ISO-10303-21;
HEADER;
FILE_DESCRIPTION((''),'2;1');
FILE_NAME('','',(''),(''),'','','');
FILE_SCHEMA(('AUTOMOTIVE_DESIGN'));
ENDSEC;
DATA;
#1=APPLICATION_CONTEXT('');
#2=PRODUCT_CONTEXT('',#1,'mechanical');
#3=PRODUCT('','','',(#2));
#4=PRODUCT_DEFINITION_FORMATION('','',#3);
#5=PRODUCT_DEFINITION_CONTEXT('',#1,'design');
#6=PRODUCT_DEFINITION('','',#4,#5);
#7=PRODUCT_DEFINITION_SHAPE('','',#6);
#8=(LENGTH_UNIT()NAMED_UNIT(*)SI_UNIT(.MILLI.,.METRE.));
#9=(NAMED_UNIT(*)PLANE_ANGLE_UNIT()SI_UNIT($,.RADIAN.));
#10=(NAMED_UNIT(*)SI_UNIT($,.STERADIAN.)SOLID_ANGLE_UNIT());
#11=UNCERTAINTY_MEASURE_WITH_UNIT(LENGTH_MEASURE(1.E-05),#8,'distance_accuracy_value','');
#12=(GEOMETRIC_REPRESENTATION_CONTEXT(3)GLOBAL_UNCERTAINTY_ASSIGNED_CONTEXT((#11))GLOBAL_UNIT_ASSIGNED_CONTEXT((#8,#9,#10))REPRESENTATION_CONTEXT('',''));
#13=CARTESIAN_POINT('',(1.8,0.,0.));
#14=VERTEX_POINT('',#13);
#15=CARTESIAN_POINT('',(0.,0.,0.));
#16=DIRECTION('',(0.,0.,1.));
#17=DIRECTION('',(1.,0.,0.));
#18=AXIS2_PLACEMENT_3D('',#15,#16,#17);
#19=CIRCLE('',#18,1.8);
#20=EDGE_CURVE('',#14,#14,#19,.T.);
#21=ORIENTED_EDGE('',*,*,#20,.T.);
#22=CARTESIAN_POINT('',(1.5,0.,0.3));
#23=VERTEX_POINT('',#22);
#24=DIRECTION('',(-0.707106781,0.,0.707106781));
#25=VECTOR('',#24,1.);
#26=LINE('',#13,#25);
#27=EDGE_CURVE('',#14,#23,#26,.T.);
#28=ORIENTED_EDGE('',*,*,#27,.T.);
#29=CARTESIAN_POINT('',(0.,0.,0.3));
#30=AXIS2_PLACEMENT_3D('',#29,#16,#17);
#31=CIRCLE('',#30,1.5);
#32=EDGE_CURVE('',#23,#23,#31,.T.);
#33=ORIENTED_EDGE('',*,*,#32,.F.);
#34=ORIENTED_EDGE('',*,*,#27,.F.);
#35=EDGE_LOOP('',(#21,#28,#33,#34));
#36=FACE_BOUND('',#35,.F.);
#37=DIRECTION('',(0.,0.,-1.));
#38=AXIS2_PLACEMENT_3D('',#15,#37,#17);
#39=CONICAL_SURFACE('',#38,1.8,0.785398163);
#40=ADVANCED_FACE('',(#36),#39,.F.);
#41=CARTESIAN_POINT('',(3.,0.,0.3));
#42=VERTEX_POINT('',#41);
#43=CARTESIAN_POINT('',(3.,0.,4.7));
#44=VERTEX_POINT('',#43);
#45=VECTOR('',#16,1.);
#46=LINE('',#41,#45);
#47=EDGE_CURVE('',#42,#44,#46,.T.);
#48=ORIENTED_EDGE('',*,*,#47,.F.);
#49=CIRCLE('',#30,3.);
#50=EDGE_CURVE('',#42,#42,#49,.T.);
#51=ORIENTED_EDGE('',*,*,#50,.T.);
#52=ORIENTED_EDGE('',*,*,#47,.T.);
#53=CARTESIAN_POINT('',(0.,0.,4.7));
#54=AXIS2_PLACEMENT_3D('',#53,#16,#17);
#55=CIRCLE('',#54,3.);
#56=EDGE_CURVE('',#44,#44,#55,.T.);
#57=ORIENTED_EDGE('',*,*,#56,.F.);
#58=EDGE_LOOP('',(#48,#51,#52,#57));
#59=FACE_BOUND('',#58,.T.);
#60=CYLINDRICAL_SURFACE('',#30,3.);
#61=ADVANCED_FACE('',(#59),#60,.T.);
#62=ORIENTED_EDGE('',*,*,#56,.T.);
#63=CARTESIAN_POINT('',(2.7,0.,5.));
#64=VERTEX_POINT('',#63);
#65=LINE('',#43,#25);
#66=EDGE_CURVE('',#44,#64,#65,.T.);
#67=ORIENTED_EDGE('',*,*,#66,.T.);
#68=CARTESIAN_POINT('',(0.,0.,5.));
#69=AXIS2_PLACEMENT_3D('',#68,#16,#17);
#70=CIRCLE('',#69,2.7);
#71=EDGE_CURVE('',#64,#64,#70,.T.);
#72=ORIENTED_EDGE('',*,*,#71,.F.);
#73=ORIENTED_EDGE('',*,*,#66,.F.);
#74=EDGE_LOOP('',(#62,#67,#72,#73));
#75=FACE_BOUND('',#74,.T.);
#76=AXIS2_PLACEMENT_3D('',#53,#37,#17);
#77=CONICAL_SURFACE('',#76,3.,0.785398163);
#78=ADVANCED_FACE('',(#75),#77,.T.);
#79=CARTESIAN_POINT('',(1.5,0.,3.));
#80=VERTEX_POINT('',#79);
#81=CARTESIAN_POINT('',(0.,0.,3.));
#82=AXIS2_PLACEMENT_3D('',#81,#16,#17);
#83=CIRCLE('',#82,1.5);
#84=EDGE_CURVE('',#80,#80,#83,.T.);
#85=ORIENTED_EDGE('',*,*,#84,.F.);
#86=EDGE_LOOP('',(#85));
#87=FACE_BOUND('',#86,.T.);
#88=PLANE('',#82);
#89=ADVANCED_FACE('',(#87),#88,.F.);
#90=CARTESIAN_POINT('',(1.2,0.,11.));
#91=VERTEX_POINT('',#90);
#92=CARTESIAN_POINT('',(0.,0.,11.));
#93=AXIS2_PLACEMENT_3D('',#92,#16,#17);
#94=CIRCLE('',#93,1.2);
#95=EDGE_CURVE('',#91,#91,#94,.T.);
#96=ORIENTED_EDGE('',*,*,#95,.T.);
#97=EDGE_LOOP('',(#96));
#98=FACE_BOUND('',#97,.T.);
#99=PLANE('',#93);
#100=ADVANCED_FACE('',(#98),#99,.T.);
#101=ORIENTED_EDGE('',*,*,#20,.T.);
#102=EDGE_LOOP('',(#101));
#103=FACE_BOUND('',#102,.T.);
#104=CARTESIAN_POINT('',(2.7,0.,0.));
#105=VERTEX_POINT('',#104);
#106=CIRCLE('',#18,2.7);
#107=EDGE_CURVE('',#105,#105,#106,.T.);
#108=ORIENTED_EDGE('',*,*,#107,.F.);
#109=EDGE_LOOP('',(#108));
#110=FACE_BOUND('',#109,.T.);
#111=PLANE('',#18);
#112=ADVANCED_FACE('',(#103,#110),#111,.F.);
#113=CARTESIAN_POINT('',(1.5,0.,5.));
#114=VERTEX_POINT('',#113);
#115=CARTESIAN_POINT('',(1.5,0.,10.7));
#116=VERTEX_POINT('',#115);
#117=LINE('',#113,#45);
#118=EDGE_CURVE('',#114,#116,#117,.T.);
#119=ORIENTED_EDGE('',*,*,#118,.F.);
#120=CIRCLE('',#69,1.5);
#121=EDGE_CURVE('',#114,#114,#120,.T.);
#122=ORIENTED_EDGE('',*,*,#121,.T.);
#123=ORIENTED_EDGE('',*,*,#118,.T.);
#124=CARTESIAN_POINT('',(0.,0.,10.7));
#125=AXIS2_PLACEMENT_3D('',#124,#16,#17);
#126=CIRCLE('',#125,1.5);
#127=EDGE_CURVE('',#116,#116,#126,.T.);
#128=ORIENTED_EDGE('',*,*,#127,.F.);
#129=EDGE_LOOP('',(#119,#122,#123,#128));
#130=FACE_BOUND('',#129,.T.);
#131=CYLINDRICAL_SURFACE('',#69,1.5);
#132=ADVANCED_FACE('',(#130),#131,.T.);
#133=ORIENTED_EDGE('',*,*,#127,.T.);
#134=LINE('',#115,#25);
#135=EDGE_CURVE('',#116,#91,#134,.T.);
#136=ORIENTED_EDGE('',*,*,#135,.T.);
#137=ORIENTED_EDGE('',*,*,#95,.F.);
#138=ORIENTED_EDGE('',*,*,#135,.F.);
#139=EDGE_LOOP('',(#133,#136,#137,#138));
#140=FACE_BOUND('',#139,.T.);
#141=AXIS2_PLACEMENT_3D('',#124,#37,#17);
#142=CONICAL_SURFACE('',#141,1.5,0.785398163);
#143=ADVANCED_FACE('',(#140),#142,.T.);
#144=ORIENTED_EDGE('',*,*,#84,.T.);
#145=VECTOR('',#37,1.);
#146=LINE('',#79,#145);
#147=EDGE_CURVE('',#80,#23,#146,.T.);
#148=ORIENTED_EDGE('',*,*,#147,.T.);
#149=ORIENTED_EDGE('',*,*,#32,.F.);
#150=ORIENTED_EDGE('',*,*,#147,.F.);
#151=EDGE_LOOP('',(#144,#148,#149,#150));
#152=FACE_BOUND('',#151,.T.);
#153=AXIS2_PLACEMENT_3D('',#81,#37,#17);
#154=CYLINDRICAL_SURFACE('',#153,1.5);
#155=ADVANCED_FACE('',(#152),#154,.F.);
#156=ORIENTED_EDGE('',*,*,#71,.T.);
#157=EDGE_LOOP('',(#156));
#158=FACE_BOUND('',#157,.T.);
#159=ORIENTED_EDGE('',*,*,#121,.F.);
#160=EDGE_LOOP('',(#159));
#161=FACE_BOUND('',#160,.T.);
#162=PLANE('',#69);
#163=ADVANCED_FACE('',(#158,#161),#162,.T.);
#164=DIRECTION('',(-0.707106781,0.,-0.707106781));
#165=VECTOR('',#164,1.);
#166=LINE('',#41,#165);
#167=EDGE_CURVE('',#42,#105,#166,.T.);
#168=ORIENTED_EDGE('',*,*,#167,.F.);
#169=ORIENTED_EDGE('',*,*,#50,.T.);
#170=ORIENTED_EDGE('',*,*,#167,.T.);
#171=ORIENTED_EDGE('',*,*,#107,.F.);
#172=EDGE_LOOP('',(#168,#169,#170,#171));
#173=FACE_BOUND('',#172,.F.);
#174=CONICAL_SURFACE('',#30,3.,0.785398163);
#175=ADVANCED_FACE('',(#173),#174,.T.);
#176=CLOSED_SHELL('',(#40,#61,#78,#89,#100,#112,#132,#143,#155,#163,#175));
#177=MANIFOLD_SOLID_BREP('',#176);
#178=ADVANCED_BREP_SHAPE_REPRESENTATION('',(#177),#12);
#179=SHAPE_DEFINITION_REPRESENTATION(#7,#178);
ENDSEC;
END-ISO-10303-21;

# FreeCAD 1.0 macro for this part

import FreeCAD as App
import Part
import Sketcher
from FreeCAD import Vector
Q = App.Units.Quantity

doc = App.newDocument("Part")
body = doc.addObject("PartDesign::Body", "Body")

# Sketch on XZ plane
sketch1 = body.newObject("Sketcher::SketchObject", "Sketch")
sketch1.AttachmentSupport = (doc.getObject("XZ_Plane"), [""])
sketch1.MapMode = "FlatFace"
sketch1.addGeometry([
    Part.LineSegment(Vector(2.7, 0, 0), Vector(1.8, 0, 0)),  # 0
    Part.LineSegment(Vector(1.8, 0, 0), Vector(1.5, 0.3, 0)),  # 1
    Part.LineSegment(Vector(1.5, 0.3, 0), Vector(1.5, 3, 0)),  # 2
    Part.LineSegment(Vector(1.5, 3, 0), Vector(0, 3, 0)),  # 3
    Part.LineSegment(Vector(0, 3, 0), Vector(0, 11, 0)),  # 4
    Part.LineSegment(Vector(0, 11, 0), Vector(1.2, 11, 0)),  # 5
    Part.LineSegment(Vector(1.2, 11, 0), Vector(1.5, 10.7, 0)),  # 6
    Part.LineSegment(Vector(1.5, 10.7, 0), Vector(1.5, 5, 0)),  # 7
    Part.LineSegment(Vector(1.5, 5, 0), Vector(2.7, 5, 0)),  # 8
    Part.LineSegment(Vector(2.7, 5, 0), Vector(3, 4.7, 0)),  # 9
    Part.LineSegment(Vector(3, 4.7, 0), Vector(3, 0.3, 0)),  # 10
    Part.LineSegment(Vector(3, 0.3, 0), Vector(2.7, 0, 0)),  # 11
], False)
sketch1.addConstraint([
    Sketcher.Constraint("Coincident", 0, 2, 1, 1),
    Sketcher.Constraint("Coincident", 1, 2, 2, 1),
    Sketcher.Constraint("Coincident", 2, 2, 3, 1),
    Sketcher.Constraint("Coincident", 3, 2, 4, 1),
    Sketcher.Constraint("Coincident", 4, 2, 5, 1),
    Sketcher.Constraint("Coincident", 5, 2, 6, 1),
    Sketcher.Constraint("Coincident", 6, 2, 7, 1),
    Sketcher.Constraint("Coincident", 7, 2, 8, 1),
    Sketcher.Constraint("Coincident", 8, 2, 9, 1),
    Sketcher.Constraint("Coincident", 9, 2, 10, 1),
    Sketcher.Constraint("Coincident", 10, 2, 11, 1),
    Sketcher.Constraint("Coincident", 11, 2, 0, 1),
    Sketcher.Constraint("Horizontal", 0),
    Sketcher.Constraint("Vertical", 2),
    Sketcher.Constraint("Horizontal", 3),
    Sketcher.Constraint("Vertical", 4),
    Sketcher.Constraint("Horizontal", 5),
    Sketcher.Constraint("Vertical", 7),
    Sketcher.Constraint("Horizontal", 8),
    Sketcher.Constraint("Vertical", 10),
    Sketcher.Constraint("PointOnObject", 0, 2, -1),
    Sketcher.Constraint("PointOnObject", 3, 2, -2),
    Sketcher.Constraint("Parallel", 1, 6),
    Sketcher.Constraint("Parallel", 6, 9),
    Sketcher.Constraint("Perpendicular", 9, 11),
    Sketcher.Constraint("Horizontal", 1, 2, 10, 2),
    Sketcher.Constraint("Vertical", 2, 2, 6, 2),
    Sketcher.Constraint("Vertical", 8, 2, 11, 2),
    Sketcher.Constraint("Equal", 5, 8),
    Sketcher.Constraint("Equal", 1, 6),
    Sketcher.Constraint("Equal", 6, 9),
    Sketcher.Constraint("DistanceY", -1, 1, 2, 2, Q("3 mm")),
    Sketcher.Constraint("DistanceY", -1, 1, 7, 2, Q("5 mm")),
    Sketcher.Constraint("DistanceX", -1, 1, 9, 2, Q("3 mm")),
    Sketcher.Constraint("DistanceY", -1, 1, 1, 2, Q("0.3 mm")),
    Sketcher.Constraint("DistanceY", 4, 1, 4, 2, Q("8 mm")),
])
revolution = body.newObject("PartDesign::Revolution", "Revolution")
revolution.Profile = sketch1
revolution.ReferenceAxis = (sketch1, ["V_Axis"])
revolution.Angle = 360

doc.recompute()
